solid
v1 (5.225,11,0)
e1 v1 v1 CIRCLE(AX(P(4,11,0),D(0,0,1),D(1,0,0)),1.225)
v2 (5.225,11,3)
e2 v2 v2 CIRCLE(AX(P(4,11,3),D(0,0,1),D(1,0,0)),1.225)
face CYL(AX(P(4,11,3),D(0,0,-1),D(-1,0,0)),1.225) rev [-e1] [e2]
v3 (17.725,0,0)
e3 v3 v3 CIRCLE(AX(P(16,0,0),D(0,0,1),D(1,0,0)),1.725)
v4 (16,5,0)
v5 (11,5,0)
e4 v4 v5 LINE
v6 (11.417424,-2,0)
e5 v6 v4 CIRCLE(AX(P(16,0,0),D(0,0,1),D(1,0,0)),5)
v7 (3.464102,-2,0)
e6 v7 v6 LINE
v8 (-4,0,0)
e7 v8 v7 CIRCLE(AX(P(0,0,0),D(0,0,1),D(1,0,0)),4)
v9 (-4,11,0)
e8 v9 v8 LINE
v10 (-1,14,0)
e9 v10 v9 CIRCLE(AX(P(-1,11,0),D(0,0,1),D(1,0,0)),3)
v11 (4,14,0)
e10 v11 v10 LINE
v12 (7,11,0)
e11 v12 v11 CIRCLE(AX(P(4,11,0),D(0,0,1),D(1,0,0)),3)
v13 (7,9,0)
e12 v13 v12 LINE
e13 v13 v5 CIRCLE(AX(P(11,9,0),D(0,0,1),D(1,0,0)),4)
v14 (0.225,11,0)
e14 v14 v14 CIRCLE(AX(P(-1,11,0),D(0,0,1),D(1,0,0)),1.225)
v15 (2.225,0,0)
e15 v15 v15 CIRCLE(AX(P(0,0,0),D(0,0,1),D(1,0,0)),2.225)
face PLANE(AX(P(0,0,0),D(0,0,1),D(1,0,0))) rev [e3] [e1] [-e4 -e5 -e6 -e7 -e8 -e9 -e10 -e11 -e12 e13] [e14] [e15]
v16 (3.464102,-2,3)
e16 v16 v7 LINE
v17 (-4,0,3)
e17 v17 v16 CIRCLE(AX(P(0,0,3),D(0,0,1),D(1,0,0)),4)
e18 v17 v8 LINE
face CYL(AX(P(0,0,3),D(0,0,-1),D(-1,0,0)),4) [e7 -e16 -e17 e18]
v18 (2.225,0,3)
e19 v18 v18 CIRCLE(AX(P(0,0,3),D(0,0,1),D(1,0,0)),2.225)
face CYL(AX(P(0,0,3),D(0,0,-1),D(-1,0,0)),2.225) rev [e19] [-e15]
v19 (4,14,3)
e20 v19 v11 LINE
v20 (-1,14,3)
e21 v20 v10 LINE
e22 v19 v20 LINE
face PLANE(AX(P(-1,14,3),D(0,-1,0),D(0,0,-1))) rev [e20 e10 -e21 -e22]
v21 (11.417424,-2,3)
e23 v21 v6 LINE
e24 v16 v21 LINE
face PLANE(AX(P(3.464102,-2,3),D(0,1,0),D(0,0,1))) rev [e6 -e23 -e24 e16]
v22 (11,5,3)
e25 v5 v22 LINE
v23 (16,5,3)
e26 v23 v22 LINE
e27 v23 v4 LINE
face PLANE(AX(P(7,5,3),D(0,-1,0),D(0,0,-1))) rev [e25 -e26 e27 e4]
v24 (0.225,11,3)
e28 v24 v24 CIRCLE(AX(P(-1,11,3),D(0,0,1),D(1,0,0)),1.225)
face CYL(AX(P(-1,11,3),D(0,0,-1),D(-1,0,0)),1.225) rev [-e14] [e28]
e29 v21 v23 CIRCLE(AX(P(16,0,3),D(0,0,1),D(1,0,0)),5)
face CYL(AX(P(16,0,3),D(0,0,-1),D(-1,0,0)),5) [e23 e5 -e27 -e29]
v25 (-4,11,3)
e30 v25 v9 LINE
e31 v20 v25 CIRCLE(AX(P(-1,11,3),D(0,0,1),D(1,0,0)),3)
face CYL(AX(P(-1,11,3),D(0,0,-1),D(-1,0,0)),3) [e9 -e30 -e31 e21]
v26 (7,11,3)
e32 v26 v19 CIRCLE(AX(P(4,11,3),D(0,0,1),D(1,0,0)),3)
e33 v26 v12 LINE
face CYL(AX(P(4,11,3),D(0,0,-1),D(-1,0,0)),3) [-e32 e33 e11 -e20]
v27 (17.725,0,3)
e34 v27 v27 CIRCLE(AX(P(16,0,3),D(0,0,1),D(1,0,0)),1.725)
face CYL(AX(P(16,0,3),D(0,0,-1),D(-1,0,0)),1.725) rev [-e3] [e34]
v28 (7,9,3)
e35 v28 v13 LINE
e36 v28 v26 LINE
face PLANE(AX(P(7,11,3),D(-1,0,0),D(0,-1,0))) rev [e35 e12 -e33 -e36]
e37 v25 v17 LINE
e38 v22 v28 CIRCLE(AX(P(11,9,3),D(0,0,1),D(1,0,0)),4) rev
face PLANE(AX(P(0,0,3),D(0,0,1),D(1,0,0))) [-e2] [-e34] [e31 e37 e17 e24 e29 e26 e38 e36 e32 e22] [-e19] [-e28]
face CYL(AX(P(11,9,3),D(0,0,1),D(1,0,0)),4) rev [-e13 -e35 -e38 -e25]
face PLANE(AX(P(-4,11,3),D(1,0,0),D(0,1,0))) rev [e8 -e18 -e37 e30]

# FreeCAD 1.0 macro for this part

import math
import FreeCAD as App
import Part
import Sketcher

V = App.Vector
Q = App.Units.Quantity


def edges_at(feature, points):
    """Names of the edges that pass closest to the given points."""
    edges = feature.Shape.Edges
    near = lambda p: min(range(len(edges)), key=lambda i: edges[i].distToShape(Part.Vertex(*p))[0])
    return sorted({f"Edge{near(p) + 1}" for p in points})

doc = App.newDocument("Part")
body = doc.addObject("PartDesign::Body", "Body")

sketch1 = body.newObject("Sketcher::SketchObject", "Sketch")
sketch1.AttachmentSupport = (doc.getObject("XY_Plane"), [""])
sketch1.MapMode = "FlatFace"
sketch1.addGeometry([
    Part.LineSegment(V(3.5, -2, 0), V(11.4, -2, 0)),
    Part.ArcOfCircle(Part.Circle(V(16, 0, 0), V(0, 0, 1), 5), math.radians(-156), math.radians(90)),
    Part.LineSegment(V(16, 5, 0), V(7, 5, 0)),
    Part.LineSegment(V(7, 5, 0), V(7, 11, 0)),
    Part.ArcOfCircle(Part.Circle(V(4, 11, 0), V(0, 0, 1), 3), math.radians(0), math.radians(90)),
    Part.LineSegment(V(4, 14, 0), V(-1, 14, 0)),
    Part.ArcOfCircle(Part.Circle(V(-1, 11, 0), V(0, 0, 1), 3), math.radians(90), math.radians(180)),
    Part.LineSegment(V(-4, 11, 0), V(-4, 0, 0)),
    Part.ArcOfCircle(Part.Circle(V(0, 0, 0), V(0, 0, 1), 4), math.radians(180), math.radians(330)),
    Part.Circle(V(0, 0, 0), V(0, 0, 1), 2.2),
    Part.Circle(V(16, 0, 0), V(0, 0, 1), 1.7),
    Part.Circle(V(-1, 11, 0), V(0, 0, 1), 1.2),
    Part.Circle(V(4, 11, 0), V(0, 0, 1), 1.2),
], False)
sketch1.addConstraint([
    Sketcher.Constraint("Coincident", 0, 2, 1, 1),
    Sketcher.Constraint("Tangent", 1, 2, 2, 1),
    Sketcher.Constraint("Coincident", 2, 2, 3, 1),
    Sketcher.Constraint("Tangent", 3, 2, 4, 1),
    Sketcher.Constraint("Tangent", 4, 2, 5, 1),
    Sketcher.Constraint("Tangent", 5, 2, 6, 1),
    Sketcher.Constraint("Tangent", 6, 2, 7, 1),
    Sketcher.Constraint("Tangent", 7, 2, 8, 1),
    Sketcher.Constraint("Coincident", 8, 2, 0, 1),
    Sketcher.Constraint("Horizontal", 0),
    Sketcher.Constraint("Horizontal", 2),
    Sketcher.Constraint("Vertical", 3),
    Sketcher.Constraint("Horizontal", 5),
    Sketcher.Constraint("Vertical", 7),
    Sketcher.Constraint("Coincident", 8, 3, -1, 1),
    Sketcher.Constraint("Coincident", 9, 3, -1, 1),
    Sketcher.Constraint("Coincident", 10, 3, 1, 3),
    Sketcher.Constraint("Coincident", 11, 3, 6, 3),
    Sketcher.Constraint("Coincident", 12, 3, 4, 3),
    Sketcher.Constraint("Equal", 4, 6),
    Sketcher.Constraint("Equal", 11, 12),
    Sketcher.Constraint("PointOnObject", 1, 3, -1),
    Sketcher.Constraint("Radius", 1, Q("5 mm")),
    Sketcher.Constraint("Radius", 4, Q("3 mm")),
    Sketcher.Constraint("Radius", 8, Q("4 mm")),
    Sketcher.Constraint("Diameter", 9, Q("4.45 mm")),
    Sketcher.Constraint("Diameter", 10, Q("3.45 mm")),
    Sketcher.Constraint("Diameter", 11, Q("2.45 mm")),
    Sketcher.Constraint("DistanceX", 2, 2, 2, 1, Q("9 mm")),
    Sketcher.Constraint("DistanceX", 5, 2, 5, 1, Q("5 mm")),
    Sketcher.Constraint("DistanceY", 3, 1, 3, 2, Q("6 mm")),
    Sketcher.Constraint("DistanceY", 0, 2, -1, 1, Q("2 mm")),
])
pad1 = body.newObject("PartDesign::Pad", "Pad")
pad1.Profile = sketch1
pad1.Length = 3
doc.recompute()

fillet = body.newObject("PartDesign::Fillet", "Fillet")
fillet.Base = (pad1, edges_at(pad1, [(7, 5, 1.5)]))
fillet.Radius = 4

doc.recompute()
